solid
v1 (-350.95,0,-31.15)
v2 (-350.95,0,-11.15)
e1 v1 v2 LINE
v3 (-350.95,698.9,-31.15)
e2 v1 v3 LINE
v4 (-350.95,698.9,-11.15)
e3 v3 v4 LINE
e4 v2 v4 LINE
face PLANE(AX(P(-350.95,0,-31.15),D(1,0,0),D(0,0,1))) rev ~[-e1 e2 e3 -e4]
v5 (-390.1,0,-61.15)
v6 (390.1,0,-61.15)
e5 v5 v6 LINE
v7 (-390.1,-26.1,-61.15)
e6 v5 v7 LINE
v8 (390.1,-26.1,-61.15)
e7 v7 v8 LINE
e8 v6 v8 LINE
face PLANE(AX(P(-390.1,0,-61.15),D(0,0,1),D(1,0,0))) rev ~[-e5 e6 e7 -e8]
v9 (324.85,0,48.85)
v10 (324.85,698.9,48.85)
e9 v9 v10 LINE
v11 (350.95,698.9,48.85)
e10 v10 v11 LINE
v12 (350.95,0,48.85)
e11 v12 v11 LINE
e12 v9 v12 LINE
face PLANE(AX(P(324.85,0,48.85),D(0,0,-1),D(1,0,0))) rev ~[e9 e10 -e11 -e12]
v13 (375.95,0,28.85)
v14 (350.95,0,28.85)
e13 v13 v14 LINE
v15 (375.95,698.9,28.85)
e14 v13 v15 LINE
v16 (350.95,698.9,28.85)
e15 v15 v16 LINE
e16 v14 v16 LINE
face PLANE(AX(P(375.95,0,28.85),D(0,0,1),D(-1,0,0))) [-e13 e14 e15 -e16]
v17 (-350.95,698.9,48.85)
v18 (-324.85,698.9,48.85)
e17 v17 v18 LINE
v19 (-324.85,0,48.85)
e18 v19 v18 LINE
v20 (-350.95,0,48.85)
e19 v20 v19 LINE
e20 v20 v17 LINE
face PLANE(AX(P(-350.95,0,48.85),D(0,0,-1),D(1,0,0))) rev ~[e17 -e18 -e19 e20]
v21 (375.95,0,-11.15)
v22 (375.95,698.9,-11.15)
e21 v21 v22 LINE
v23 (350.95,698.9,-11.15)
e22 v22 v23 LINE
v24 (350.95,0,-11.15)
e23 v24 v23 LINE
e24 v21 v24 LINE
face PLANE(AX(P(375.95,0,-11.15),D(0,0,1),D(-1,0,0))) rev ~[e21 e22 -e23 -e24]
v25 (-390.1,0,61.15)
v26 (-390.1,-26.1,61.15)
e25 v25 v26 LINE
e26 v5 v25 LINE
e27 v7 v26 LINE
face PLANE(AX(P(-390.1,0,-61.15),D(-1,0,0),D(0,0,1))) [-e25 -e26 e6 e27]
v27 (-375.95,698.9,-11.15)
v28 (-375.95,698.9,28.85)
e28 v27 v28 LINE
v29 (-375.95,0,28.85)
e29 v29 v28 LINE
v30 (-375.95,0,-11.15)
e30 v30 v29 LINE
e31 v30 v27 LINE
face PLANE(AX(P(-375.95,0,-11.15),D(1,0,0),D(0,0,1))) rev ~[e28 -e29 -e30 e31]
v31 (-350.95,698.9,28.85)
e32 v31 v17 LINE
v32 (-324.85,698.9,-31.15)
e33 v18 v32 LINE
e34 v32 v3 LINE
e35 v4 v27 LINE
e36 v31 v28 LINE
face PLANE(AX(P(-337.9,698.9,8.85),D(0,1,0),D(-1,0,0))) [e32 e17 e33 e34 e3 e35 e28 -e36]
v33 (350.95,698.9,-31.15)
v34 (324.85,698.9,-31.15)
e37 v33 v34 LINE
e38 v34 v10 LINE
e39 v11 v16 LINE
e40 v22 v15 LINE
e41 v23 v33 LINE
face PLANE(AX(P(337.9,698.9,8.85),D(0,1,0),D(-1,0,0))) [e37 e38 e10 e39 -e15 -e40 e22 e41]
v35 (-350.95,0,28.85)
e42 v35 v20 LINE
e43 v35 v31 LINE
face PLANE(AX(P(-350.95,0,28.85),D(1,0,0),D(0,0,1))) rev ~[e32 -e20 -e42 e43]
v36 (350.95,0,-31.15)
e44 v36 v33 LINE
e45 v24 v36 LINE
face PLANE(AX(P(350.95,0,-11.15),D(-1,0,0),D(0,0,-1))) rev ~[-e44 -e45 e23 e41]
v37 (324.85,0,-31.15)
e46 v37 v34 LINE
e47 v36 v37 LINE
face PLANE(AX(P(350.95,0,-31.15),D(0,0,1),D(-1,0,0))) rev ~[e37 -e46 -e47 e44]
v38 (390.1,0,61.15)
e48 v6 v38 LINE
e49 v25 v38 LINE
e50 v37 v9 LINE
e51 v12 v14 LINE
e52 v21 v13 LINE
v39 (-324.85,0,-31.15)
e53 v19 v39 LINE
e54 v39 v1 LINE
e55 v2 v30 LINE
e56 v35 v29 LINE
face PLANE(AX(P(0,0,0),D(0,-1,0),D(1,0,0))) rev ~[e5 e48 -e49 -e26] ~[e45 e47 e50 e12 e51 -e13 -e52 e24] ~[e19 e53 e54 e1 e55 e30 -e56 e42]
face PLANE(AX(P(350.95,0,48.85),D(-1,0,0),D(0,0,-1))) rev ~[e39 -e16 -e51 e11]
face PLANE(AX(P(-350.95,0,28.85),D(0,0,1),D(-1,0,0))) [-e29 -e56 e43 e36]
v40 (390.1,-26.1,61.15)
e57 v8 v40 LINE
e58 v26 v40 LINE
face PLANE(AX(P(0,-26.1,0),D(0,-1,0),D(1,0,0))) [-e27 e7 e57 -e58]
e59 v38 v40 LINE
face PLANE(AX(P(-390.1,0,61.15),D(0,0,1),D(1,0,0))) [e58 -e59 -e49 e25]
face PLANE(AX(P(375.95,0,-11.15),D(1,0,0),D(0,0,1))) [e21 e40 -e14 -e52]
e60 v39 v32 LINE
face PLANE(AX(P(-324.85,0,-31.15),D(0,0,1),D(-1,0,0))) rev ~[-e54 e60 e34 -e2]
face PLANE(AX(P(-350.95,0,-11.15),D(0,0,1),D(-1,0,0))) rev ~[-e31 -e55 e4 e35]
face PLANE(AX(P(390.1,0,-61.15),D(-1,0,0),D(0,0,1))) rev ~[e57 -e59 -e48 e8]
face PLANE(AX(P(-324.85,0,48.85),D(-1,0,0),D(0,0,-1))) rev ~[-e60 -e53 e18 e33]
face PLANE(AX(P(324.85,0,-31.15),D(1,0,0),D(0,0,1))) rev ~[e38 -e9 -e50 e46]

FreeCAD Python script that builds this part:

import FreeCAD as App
import Part
import Sketcher

V = App.Vector

doc = App.newDocument("Part")
body = doc.addObject("PartDesign::Body", "Body")

sketch1 = body.newObject("Sketcher::SketchObject", "Sketch")
sketch1.AttachmentSupport = (doc.getObject("XZ_Plane"), [""])
sketch1.MapMode = "FlatFace"
sketch1.addGeometry([
    Part.LineSegment(V(-390.1, 61.15, 0), V(-390.1, -61.15, 0)),
    Part.LineSegment(V(-390.1, -61.15, 0), V(390.1, -61.15, 0)),
    Part.LineSegment(V(390.1, -61.15, 0), V(390.1, 61.15, 0)),
    Part.LineSegment(V(390.1, 61.15, 0), V(-390.1, 61.15, 0)),
], False)
sketch1.addConstraint([
    Sketcher.Constraint("Coincident", 0, 2, 1, 1),
    Sketcher.Constraint("Coincident", 1, 2, 2, 1),
    Sketcher.Constraint("Coincident", 2, 2, 3, 1),
    Sketcher.Constraint("Coincident", 3, 2, 0, 1),
    Sketcher.Constraint("Vertical", 0),
    Sketcher.Constraint("Horizontal", 1),
    Sketcher.Constraint("Vertical", 2),
    Sketcher.Constraint("Horizontal", 3),
    Sketcher.Constraint("Symmetric", 0, 2, 2, 2, -1, 1),
    Sketcher.Constraint("DistanceX", 1, 1, 1, 2, 780.2),
    Sketcher.Constraint("DistanceY", 0, 2, 0, 1, 122.3),
])
pad1 = body.newObject("PartDesign::Pad", "Pad")
pad1.Profile = sketch1
pad1.Length = 26.1

sketch2 = body.newObject("Sketcher::SketchObject", "Sketch001")
sketch2.AttachmentSupport = (doc.getObject("XZ_Plane"), [""])
sketch2.MapMode = "FlatFace"
sketch2.addGeometry([
    Part.LineSegment(V(350.95, 48.85, 0), V(350.95, 28.85, 0)),
    Part.LineSegment(V(350.95, 28.85, 0), V(375.95, 28.85, 0)),
    Part.LineSegment(V(375.95, 28.85, 0), V(375.95, -11.15, 0)),
    Part.LineSegment(V(375.95, -11.15, 0), V(350.95, -11.15, 0)),
    Part.LineSegment(V(350.95, -11.15, 0), V(350.95, -31.15, 0)),
    Part.LineSegment(V(350.95, -31.15, 0), V(324.85, -31.15, 0)),
    Part.LineSegment(V(324.85, -31.15, 0), V(324.85, 48.85, 0)),
    Part.LineSegment(V(324.85, 48.85, 0), V(350.95, 48.85, 0)),
    Part.LineSegment(V(-350.95, 48.85, 0), V(-324.85, 48.85, 0)),
    Part.LineSegment(V(-324.85, 48.85, 0), V(-324.85, -31.15, 0)),
    Part.LineSegment(V(-324.85, -31.15, 0), V(-350.95, -31.15, 0)),
    Part.LineSegment(V(-350.95, -31.15, 0), V(-350.95, -11.15, 0)),
    Part.LineSegment(V(-350.95, -11.15, 0), V(-375.95, -11.15, 0)),
    Part.LineSegment(V(-375.95, -11.15, 0), V(-375.95, 28.85, 0)),
    Part.LineSegment(V(-375.95, 28.85, 0), V(-350.95, 28.85, 0)),
    Part.LineSegment(V(-350.95, 28.85, 0), V(-350.95, 48.85, 0)),
], False)
sketch2.addConstraint([
    Sketcher.Constraint("Coincident", 0, 2, 1, 1),
    Sketcher.Constraint("Coincident", 1, 2, 2, 1),
    Sketcher.Constraint("Coincident", 2, 2, 3, 1),
    Sketcher.Constraint("Coincident", 3, 2, 4, 1),
    Sketcher.Constraint("Coincident", 4, 2, 5, 1),
    Sketcher.Constraint("Coincident", 5, 2, 6, 1),
    Sketcher.Constraint("Coincident", 6, 2, 7, 1),
    Sketcher.Constraint("Coincident", 7, 2, 0, 1),
    Sketcher.Constraint("Coincident", 8, 2, 9, 1),
    Sketcher.Constraint("Coincident", 9, 2, 10, 1),
    Sketcher.Constraint("Coincident", 10, 2, 11, 1),
    Sketcher.Constraint("Coincident", 11, 2, 12, 1),
    Sketcher.Constraint("Coincident", 12, 2, 13, 1),
    Sketcher.Constraint("Coincident", 13, 2, 14, 1),
    Sketcher.Constraint("Coincident", 14, 2, 15, 1),
    Sketcher.Constraint("Coincident", 15, 2, 8, 1),
    Sketcher.Constraint("Vertical", 0),
    Sketcher.Constraint("Horizontal", 1),
    Sketcher.Constraint("Vertical", 2),
    Sketcher.Constraint("Horizontal", 3),
    Sketcher.Constraint("Vertical", 4),
    Sketcher.Constraint("Horizontal", 5),
    Sketcher.Constraint("Vertical", 6),
    Sketcher.Constraint("Horizontal", 7),
    Sketcher.Constraint("Horizontal", 8),
    Sketcher.Constraint("Vertical", 9),
    Sketcher.Constraint("Horizontal", 10),
    Sketcher.Constraint("Vertical", 11),
    Sketcher.Constraint("Horizontal", 12),
    Sketcher.Constraint("Vertical", 13),
    Sketcher.Constraint("Horizontal", 14),
    Sketcher.Constraint("Vertical", 15),
    Sketcher.Constraint("Symmetric", 6, 2, 8, 2, -2),
    Sketcher.Constraint("Symmetric", 4, 2, 10, 2, -2),
    Sketcher.Constraint("Symmetric", 2, 2, 12, 2, -2),
    Sketcher.Constraint("Symmetric", 0, 2, 14, 2, -2),
    Sketcher.Constraint("Vertical", 0, 2, 3, 2),
    Sketcher.Constraint("Equal", 0, 4),
    Sketcher.Constraint("DistanceX", 1, 1, 1, 2, 25.0),
    Sketcher.Constraint("DistanceY", 0, 2, 0, 1, 20.0),
    Sketcher.Constraint("DistanceY", 2, 2, 2, 1, 40.0),
    Sketcher.Constraint("DistanceX", 5, 2, 5, 1, 26.1),
    Sketcher.Constraint("DistanceX", 8, 2, 6, 2, 649.7),
    Sketcher.Constraint("DistanceY", -1, 1, 0, 2, 28.85),
])
pad2 = body.newObject("PartDesign::Pad", "Pad001")
pad2.Profile = sketch2
pad2.Length = 698.9
pad2.Reversed = True

doc.recompute()
